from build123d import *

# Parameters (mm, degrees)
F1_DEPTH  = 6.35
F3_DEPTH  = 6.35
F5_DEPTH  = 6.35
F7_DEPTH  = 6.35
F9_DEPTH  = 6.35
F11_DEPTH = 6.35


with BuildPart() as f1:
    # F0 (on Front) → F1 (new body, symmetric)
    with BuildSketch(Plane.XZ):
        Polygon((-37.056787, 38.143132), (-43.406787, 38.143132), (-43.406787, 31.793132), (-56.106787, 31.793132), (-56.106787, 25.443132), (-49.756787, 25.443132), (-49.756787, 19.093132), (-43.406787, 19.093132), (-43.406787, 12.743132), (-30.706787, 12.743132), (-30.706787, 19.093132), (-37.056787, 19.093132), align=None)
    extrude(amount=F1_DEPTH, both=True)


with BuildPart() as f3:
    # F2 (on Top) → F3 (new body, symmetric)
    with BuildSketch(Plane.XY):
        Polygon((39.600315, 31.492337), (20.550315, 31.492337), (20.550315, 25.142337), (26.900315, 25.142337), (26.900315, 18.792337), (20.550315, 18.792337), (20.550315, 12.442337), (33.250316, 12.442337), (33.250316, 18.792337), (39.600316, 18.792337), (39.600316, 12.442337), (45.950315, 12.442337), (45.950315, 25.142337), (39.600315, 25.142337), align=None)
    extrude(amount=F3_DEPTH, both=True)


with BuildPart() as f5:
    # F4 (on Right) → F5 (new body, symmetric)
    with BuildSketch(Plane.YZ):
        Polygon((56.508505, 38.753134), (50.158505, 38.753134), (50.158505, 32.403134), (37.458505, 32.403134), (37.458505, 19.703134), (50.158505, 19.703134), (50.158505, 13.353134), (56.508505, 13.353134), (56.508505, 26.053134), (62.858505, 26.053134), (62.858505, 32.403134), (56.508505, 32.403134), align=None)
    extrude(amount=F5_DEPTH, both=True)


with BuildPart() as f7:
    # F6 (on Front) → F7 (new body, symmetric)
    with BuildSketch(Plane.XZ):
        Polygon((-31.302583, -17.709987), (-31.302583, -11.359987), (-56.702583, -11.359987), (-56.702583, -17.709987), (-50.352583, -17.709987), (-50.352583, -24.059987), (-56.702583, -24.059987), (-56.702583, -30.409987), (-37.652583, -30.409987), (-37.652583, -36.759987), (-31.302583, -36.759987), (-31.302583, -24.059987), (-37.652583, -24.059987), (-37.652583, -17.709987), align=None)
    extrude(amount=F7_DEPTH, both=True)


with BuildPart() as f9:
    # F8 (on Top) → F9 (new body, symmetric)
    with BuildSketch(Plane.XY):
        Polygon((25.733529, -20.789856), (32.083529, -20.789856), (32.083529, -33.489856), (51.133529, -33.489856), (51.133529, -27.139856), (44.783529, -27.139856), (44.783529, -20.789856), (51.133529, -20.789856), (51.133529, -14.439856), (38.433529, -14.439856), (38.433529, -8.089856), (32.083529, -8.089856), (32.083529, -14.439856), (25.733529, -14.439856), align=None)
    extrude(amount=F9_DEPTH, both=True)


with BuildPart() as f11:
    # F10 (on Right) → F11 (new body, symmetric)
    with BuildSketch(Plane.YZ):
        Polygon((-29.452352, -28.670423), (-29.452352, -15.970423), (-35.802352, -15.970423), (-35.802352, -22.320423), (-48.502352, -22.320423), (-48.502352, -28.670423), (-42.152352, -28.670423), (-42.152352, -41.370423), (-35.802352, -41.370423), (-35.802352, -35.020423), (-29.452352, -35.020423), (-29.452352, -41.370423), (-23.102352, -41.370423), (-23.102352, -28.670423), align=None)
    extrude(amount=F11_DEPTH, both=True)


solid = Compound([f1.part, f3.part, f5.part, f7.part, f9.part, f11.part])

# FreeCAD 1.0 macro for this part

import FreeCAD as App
import Part
import Sketcher
Q = App.Units.Quantity


def add_polygon(sketch, points):
    """Adds a closed chain of lines whose ends are joined by coincident constraints."""
    first, n = sketch.GeometryCount, len(points)
    for a, b in zip(points, points[1:] + points[:1]):
        sketch.addGeometry(Part.LineSegment(App.Vector(*a, 0), App.Vector(*b, 0)), False)
    for i in range(n):
        sketch.addConstraint(Sketcher.Constraint("Coincident", first + i, 2, first + (i + 1) % n, 1))

doc = App.newDocument("Part")
body = doc.addObject("PartDesign::Body", "Body")

# Sketch on XZ plane
sketch1 = body.newObject("Sketcher::SketchObject", "Sketch")
sketch1.AttachmentSupport = (doc.getObject("XZ_Plane"), [""])
sketch1.MapMode = "FlatFace"
add_polygon(sketch1, [(-37, 38), (-43, 38), (-43, 32), (-56, 32), (-56, 25), (-50, 25), (-50, 19), (-43, 19), (-43, 13), (-31, 13), (-31, 19), (-37, 19)])  # lines 0-11
sketch1.addConstraint(Sketcher.Constraint("Horizontal", 0))
sketch1.addConstraint(Sketcher.Constraint("Vertical", 1))
sketch1.addConstraint(Sketcher.Constraint("Horizontal", 2))
sketch1.addConstraint(Sketcher.Constraint("Vertical", 3))
sketch1.addConstraint(Sketcher.Constraint("Horizontal", 4))
sketch1.addConstraint(Sketcher.Constraint("Vertical", 5))
sketch1.addConstraint(Sketcher.Constraint("Horizontal", 6))
sketch1.addConstraint(Sketcher.Constraint("Vertical", 7))
sketch1.addConstraint(Sketcher.Constraint("Horizontal", 8))
sketch1.addConstraint(Sketcher.Constraint("Vertical", 9))
sketch1.addConstraint(Sketcher.Constraint("Horizontal", 10))
sketch1.addConstraint(Sketcher.Constraint("Vertical", 11))
sketch1.addConstraint(Sketcher.Constraint("Horizontal", 6, 2, 9, 2))
sketch1.addConstraint(Sketcher.Constraint("Vertical", 1, 2, 6, 2))
sketch1.addConstraint(Sketcher.Constraint("Equal", 0, 4))
sketch1.addConstraint(Sketcher.Constraint("Equal", 4, 6))
sketch1.addConstraint(Sketcher.Constraint("Equal", 2, 8))
sketch1.addConstraint(Sketcher.Constraint("Equal", 10, 1))
sketch1.addConstraint(Sketcher.Constraint("Equal", 1, 3))
sketch1.addConstraint(Sketcher.Constraint("Equal", 3, 5))
sketch1.addConstraint(Sketcher.Constraint("Equal", 5, 7))
sketch1.addConstraint(Sketcher.Constraint("DistanceX", 2, 2, 2, 1, Q("0.5 in")))
sketch1.addConstraint(Sketcher.Constraint("DistanceY", -1, 1, 1, 2, 31.793132))
sketch1.addConstraint(Sketcher.Constraint("DistanceX", 0, 2, -1, 1, 43.406787))
pad1 = body.newObject("PartDesign::Pad", "Pad")
pad1.Profile = sketch1
pad1.Length = Q("0.5 in")
pad1.Midplane = True
body2 = doc.addObject("PartDesign::Body", "Body001")

# Sketch on XY plane
sketch2 = body2.newObject("Sketcher::SketchObject", "Sketch001")
sketch2.AttachmentSupport = (doc.getObject("XY_Plane001"), [""])
sketch2.MapMode = "FlatFace"
add_polygon(sketch2, [(40, 31), (21, 31), (21, 25), (27, 25), (27, 19), (21, 19), (21, 12), (33, 12), (33, 19), (40, 19), (40, 12), (46, 12), (46, 25), (40, 25)])  # lines 0-13
sketch2.addConstraint(Sketcher.Constraint("Horizontal", 0))
sketch2.addConstraint(Sketcher.Constraint("Vertical", 1))
sketch2.addConstraint(Sketcher.Constraint("Horizontal", 2))
sketch2.addConstraint(Sketcher.Constraint("Vertical", 3))
sketch2.addConstraint(Sketcher.Constraint("Horizontal", 4))
sketch2.addConstraint(Sketcher.Constraint("Vertical", 5))
sketch2.addConstraint(Sketcher.Constraint("Horizontal", 6))
sketch2.addConstraint(Sketcher.Constraint("Vertical", 7))
sketch2.addConstraint(Sketcher.Constraint("Horizontal", 8))
sketch2.addConstraint(Sketcher.Constraint("Vertical", 9))
sketch2.addConstraint(Sketcher.Constraint("Horizontal", 10))
sketch2.addConstraint(Sketcher.Constraint("Vertical", 11))
sketch2.addConstraint(Sketcher.Constraint("Horizontal", 12))
sketch2.addConstraint(Sketcher.Constraint("Vertical", 13))
sketch2.addConstraint(Sketcher.Constraint("Horizontal", 4, 2, 7, 2))
sketch2.addConstraint(Sketcher.Constraint("Horizontal", 6, 2, 9, 2))
sketch2.addConstraint(Sketcher.Constraint("Horizontal", 2, 2, 11, 2))
sketch2.addConstraint(Sketcher.Constraint("Vertical", 1, 2, 4, 2))
sketch2.addConstraint(Sketcher.Constraint("Vertical", 9, 2, 12, 2))
sketch2.addConstraint(Sketcher.Constraint("Equal", 4, 8))
sketch2.addConstraint(Sketcher.Constraint("Equal", 8, 10))
sketch2.addConstraint(Sketcher.Constraint("Equal", 12, 1))
sketch2.addConstraint(Sketcher.Constraint("Equal", 1, 3))
sketch2.addConstraint(Sketcher.Constraint("Equal", 3, 5))
sketch2.addConstraint(Sketcher.Constraint("Equal", 6, 11))
sketch2.addConstraint(Sketcher.Constraint("DistanceX", 6, 1, 6, 2, Q("0.5 in")))
sketch2.addConstraint(Sketcher.Constraint("DistanceX", -1, 1, 0, 2, 20.550315))
sketch2.addConstraint(Sketcher.Constraint("DistanceY", -1, 1, 0, 2, 31.492337))
pad2 = body2.newObject("PartDesign::Pad", "Pad001")
pad2.Profile = sketch2
pad2.Length = Q("0.5 in")
pad2.Midplane = True
body3 = doc.addObject("PartDesign::Body", "Body002")

# Sketch on YZ plane
sketch3 = body3.newObject("Sketcher::SketchObject", "Sketch002")
sketch3.AttachmentSupport = (doc.getObject("YZ_Plane002"), [""])
sketch3.MapMode = "FlatFace"
add_polygon(sketch3, [(57, 39), (50, 39), (50, 32), (37, 32), (37, 20), (50, 20), (50, 13), (57, 13), (57, 26), (63, 26), (63, 32), (57, 32)])  # lines 0-11
sketch3.addConstraint(Sketcher.Constraint("Horizontal", 0))
sketch3.addConstraint(Sketcher.Constraint("Vertical", 1))
sketch3.addConstraint(Sketcher.Constraint("Horizontal", 2))
sketch3.addConstraint(Sketcher.Constraint("Vertical", 3))
sketch3.addConstraint(Sketcher.Constraint("Horizontal", 4))
sketch3.addConstraint(Sketcher.Constraint("Vertical", 5))
sketch3.addConstraint(Sketcher.Constraint("Horizontal", 6))
sketch3.addConstraint(Sketcher.Constraint("Vertical", 7))
sketch3.addConstraint(Sketcher.Constraint("Horizontal", 8))
sketch3.addConstraint(Sketcher.Constraint("Vertical", 9))
sketch3.addConstraint(Sketcher.Constraint("Horizontal", 10))
sketch3.addConstraint(Sketcher.Constraint("Vertical", 11))
sketch3.addConstraint(Sketcher.Constraint("Horizontal", 2, 2, 9, 2))
sketch3.addConstraint(Sketcher.Constraint("Vertical", 1, 2, 4, 2))
sketch3.addConstraint(Sketcher.Constraint("Vertical", 7, 2, 10, 2))
sketch3.addConstraint(Sketcher.Constraint("Equal", 6, 8))
sketch3.addConstraint(Sketcher.Constraint("Equal", 10, 1))
sketch3.addConstraint(Sketcher.Constraint("Equal", 4, 3))
sketch3.addConstraint(Sketcher.Constraint("Equal", 1, 5))
sketch3.addConstraint(Sketcher.Constraint("Equal", 3, 7))
sketch3.addConstraint(Sketcher.Constraint("DistanceX", 2, 2, 2, 1, Q("0.5 in")))
sketch3.addConstraint(Sketcher.Constraint("DistanceY", 5, 2, 0, 2, Q("1 in")))
sketch3.addConstraint(Sketcher.Constraint("DistanceX", -1, 1, 0, 2, 50.158505))
sketch3.addConstraint(Sketcher.Constraint("DistanceY", -1, 1, 0, 2, 38.753134))
pad3 = body3.newObject("PartDesign::Pad", "Pad002")
pad3.Profile = sketch3
pad3.Length = Q("0.5 in")
pad3.Midplane = True
body4 = doc.addObject("PartDesign::Body", "Body003")

# Sketch on XZ plane
sketch4 = body4.newObject("Sketcher::SketchObject", "Sketch003")
sketch4.AttachmentSupport = (doc.getObject("XZ_Plane003"), [""])
sketch4.MapMode = "FlatFace"
add_polygon(sketch4, [(-31, -18), (-31, -11), (-57, -11), (-57, -18), (-50, -18), (-50, -24), (-57, -24), (-57, -30), (-38, -30), (-38, -37), (-31, -37), (-31, -24), (-38, -24), (-38, -18)])  # lines 0-13
sketch4.addConstraint(Sketcher.Constraint("Vertical", 0))
sketch4.addConstraint(Sketcher.Constraint("Horizontal", 1))
sketch4.addConstraint(Sketcher.Constraint("Vertical", 2))
sketch4.addConstraint(Sketcher.Constraint("Horizontal", 3))
sketch4.addConstraint(Sketcher.Constraint("Vertical", 4))
sketch4.addConstraint(Sketcher.Constraint("Horizontal", 5))
sketch4.addConstraint(Sketcher.Constraint("Vertical", 6))
sketch4.addConstraint(Sketcher.Constraint("Horizontal", 7))
sketch4.addConstraint(Sketcher.Constraint("Vertical", 8))
sketch4.addConstraint(Sketcher.Constraint("Horizontal", 9))
sketch4.addConstraint(Sketcher.Constraint("Vertical", 10))
sketch4.addConstraint(Sketcher.Constraint("Horizontal", 11))
sketch4.addConstraint(Sketcher.Constraint("Vertical", 12))
sketch4.addConstraint(Sketcher.Constraint("Horizontal", 13))
sketch4.addConstraint(Sketcher.Constraint("Horizontal", 5, 2, 10, 2))
sketch4.addConstraint(Sketcher.Constraint("Horizontal", 3, 2, 12, 2))
sketch4.addConstraint(Sketcher.Constraint("Vertical", 2, 2, 5, 2))
sketch4.addConstraint(Sketcher.Constraint("Vertical", 0, 2, 9, 2))
sketch4.addConstraint(Sketcher.Constraint("Vertical", 8, 2, 11, 2))
sketch4.addConstraint(Sketcher.Constraint("Equal", 5, 9))
sketch4.addConstraint(Sketcher.Constraint("Equal", 13, 0))
sketch4.addConstraint(Sketcher.Constraint("Equal", 2, 4))
sketch4.addConstraint(Sketcher.Constraint("Equal", 4, 6))
sketch4.addConstraint(Sketcher.Constraint("Equal", 6, 8))
sketch4.addConstraint(Sketcher.Constraint("DistanceX", 1, 2, 1, 1, Q("1 in")))
sketch4.addConstraint(Sketcher.Constraint("DistanceY", 10, 1, 10, 2, Q("0.5 in")))
sketch4.addConstraint(Sketcher.Constraint("DistanceX", 0, 2, -1, 1, 31.302583))
sketch4.addConstraint(Sketcher.Constraint("DistanceY", 0, 2, -1, 1, 11.359987))
pad4 = body4.newObject("PartDesign::Pad", "Pad003")
pad4.Profile = sketch4
pad4.Length = Q("0.5 in")
pad4.Midplane = True
body5 = doc.addObject("PartDesign::Body", "Body004")

# Sketch on XY plane
sketch5 = body5.newObject("Sketcher::SketchObject", "Sketch004")
sketch5.AttachmentSupport = (doc.getObject("XY_Plane004"), [""])
sketch5.MapMode = "FlatFace"
add_polygon(sketch5, [(26, -21), (32, -21), (32, -33), (51, -33), (51, -27), (45, -27), (45, -21), (51, -21), (51, -14), (38, -14), (38, -8), (32, -8), (32, -14), (26, -14)])  # lines 0-13
sketch5.addConstraint(Sketcher.Constraint("Horizontal", 0))
sketch5.addConstraint(Sketcher.Constraint("Vertical", 1))
sketch5.addConstraint(Sketcher.Constraint("Horizontal", 2))
sketch5.addConstraint(Sketcher.Constraint("Vertical", 3))
sketch5.addConstraint(Sketcher.Constraint("Horizontal", 4))
sketch5.addConstraint(Sketcher.Constraint("Vertical", 5))
sketch5.addConstraint(Sketcher.Constraint("Horizontal", 6))
sketch5.addConstraint(Sketcher.Constraint("Vertical", 7))
sketch5.addConstraint(Sketcher.Constraint("Horizontal", 8))
sketch5.addConstraint(Sketcher.Constraint("Vertical", 9))
sketch5.addConstraint(Sketcher.Constraint("Horizontal", 10))
sketch5.addConstraint(Sketcher.Constraint("Vertical", 11))
sketch5.addConstraint(Sketcher.Constraint("Horizontal", 12))
sketch5.addConstraint(Sketcher.Constraint("Vertical", 13))
sketch5.addConstraint(Sketcher.Constraint("Horizontal", 0, 2, 5, 2))
sketch5.addConstraint(Sketcher.Constraint("Horizontal", 8, 2, 11, 2))
sketch5.addConstraint(Sketcher.Constraint("Vertical", 3, 2, 6, 2))
sketch5.addConstraint(Sketcher.Constraint("Vertical", 1, 2, 10, 2))
sketch5.addConstraint(Sketcher.Constraint("Equal", 0, 4))
sketch5.addConstraint(Sketcher.Constraint("Equal", 6, 10))
sketch5.addConstraint(Sketcher.Constraint("Equal", 8, 1))
sketch5.addConstraint(Sketcher.Constraint("Equal", 12, 3))
sketch5.addConstraint(Sketcher.Constraint("Equal", 3, 5))
sketch5.addConstraint(Sketcher.Constraint("Equal", 5, 7))
sketch5.addConstraint(Sketcher.Constraint("Equal", 7, 9))
sketch5.addConstraint(Sketcher.Constraint("DistanceX", 8, 2, 8, 1, Q("0.5 in")))
sketch5.addConstraint(Sketcher.Constraint("DistanceX", -1, 1, 0, 2, 32.083529))
sketch5.addConstraint(Sketcher.Constraint("DistanceY", 0, 2, -1, 1, 20.789856))
pad5 = body5.newObject("PartDesign::Pad", "Pad004")
pad5.Profile = sketch5
pad5.Length = Q("0.5 in")
pad5.Midplane = True
body6 = doc.addObject("PartDesign::Body", "Body005")

# Sketch on YZ plane
sketch6 = body6.newObject("Sketcher::SketchObject", "Sketch005")
sketch6.AttachmentSupport = (doc.getObject("YZ_Plane005"), [""])
sketch6.MapMode = "FlatFace"
add_polygon(sketch6, [(-29, -29), (-29, -16), (-36, -16), (-36, -22), (-49, -22), (-49, -29), (-42, -29), (-42, -41), (-36, -41), (-36, -35), (-29, -35), (-29, -41), (-23, -41), (-23, -29)])  # lines 0-13
sketch6.addConstraint(Sketcher.Constraint("Vertical", 0))
sketch6.addConstraint(Sketcher.Constraint("Horizontal", 1))
sketch6.addConstraint(Sketcher.Constraint("Vertical", 2))
sketch6.addConstraint(Sketcher.Constraint("Horizontal", 3))
sketch6.addConstraint(Sketcher.Constraint("Vertical", 4))
sketch6.addConstraint(Sketcher.Constraint("Horizontal", 5))
sketch6.addConstraint(Sketcher.Constraint("Vertical", 6))
sketch6.addConstraint(Sketcher.Constraint("Horizontal", 7))
sketch6.addConstraint(Sketcher.Constraint("Vertical", 8))
sketch6.addConstraint(Sketcher.Constraint("Horizontal", 9))
sketch6.addConstraint(Sketcher.Constraint("Vertical", 10))
sketch6.addConstraint(Sketcher.Constraint("Horizontal", 11))
sketch6.addConstraint(Sketcher.Constraint("Vertical", 12))
sketch6.addConstraint(Sketcher.Constraint("Horizontal", 13))
sketch6.addConstraint(Sketcher.Constraint("Horizontal", 7, 2, 10, 2))
sketch6.addConstraint(Sketcher.Constraint("Horizontal", 5, 2, 12, 2))
sketch6.addConstraint(Sketcher.Constraint("Vertical", 2, 2, 7, 2))
sketch6.addConstraint(Sketcher.Constraint("Vertical", 0, 2, 9, 2))
sketch6.addConstraint(Sketcher.Constraint("Equal", 1, 5))
sketch6.addConstraint(Sketcher.Constraint("Equal", 5, 7))
sketch6.addConstraint(Sketcher.Constraint("Equal", 9, 11))
sketch6.addConstraint(Sketcher.Constraint("Equal", 3, 0))
sketch6.addConstraint(Sketcher.Constraint("Equal", 13, 2))
sketch6.addConstraint(Sketcher.Constraint("Equal", 0, 6))
sketch6.addConstraint(Sketcher.Constraint("Equal", 4, 8))
sketch6.addConstraint(Sketcher.Constraint("DistanceX", 3, 2, 3, 1, Q("0.5 in")))
sketch6.addConstraint(Sketcher.Constraint("DistanceX", 11, 2, -1, 1, 23.102352))
sketch6.addConstraint(Sketcher.Constraint("DistanceY", 0, 2, -1, 1, 15.970423))
pad6 = body6.newObject("PartDesign::Pad", "Pad005")
pad6.Profile = sketch6
pad6.Length = Q("0.5 in")
pad6.Midplane = True

doc.recompute()
